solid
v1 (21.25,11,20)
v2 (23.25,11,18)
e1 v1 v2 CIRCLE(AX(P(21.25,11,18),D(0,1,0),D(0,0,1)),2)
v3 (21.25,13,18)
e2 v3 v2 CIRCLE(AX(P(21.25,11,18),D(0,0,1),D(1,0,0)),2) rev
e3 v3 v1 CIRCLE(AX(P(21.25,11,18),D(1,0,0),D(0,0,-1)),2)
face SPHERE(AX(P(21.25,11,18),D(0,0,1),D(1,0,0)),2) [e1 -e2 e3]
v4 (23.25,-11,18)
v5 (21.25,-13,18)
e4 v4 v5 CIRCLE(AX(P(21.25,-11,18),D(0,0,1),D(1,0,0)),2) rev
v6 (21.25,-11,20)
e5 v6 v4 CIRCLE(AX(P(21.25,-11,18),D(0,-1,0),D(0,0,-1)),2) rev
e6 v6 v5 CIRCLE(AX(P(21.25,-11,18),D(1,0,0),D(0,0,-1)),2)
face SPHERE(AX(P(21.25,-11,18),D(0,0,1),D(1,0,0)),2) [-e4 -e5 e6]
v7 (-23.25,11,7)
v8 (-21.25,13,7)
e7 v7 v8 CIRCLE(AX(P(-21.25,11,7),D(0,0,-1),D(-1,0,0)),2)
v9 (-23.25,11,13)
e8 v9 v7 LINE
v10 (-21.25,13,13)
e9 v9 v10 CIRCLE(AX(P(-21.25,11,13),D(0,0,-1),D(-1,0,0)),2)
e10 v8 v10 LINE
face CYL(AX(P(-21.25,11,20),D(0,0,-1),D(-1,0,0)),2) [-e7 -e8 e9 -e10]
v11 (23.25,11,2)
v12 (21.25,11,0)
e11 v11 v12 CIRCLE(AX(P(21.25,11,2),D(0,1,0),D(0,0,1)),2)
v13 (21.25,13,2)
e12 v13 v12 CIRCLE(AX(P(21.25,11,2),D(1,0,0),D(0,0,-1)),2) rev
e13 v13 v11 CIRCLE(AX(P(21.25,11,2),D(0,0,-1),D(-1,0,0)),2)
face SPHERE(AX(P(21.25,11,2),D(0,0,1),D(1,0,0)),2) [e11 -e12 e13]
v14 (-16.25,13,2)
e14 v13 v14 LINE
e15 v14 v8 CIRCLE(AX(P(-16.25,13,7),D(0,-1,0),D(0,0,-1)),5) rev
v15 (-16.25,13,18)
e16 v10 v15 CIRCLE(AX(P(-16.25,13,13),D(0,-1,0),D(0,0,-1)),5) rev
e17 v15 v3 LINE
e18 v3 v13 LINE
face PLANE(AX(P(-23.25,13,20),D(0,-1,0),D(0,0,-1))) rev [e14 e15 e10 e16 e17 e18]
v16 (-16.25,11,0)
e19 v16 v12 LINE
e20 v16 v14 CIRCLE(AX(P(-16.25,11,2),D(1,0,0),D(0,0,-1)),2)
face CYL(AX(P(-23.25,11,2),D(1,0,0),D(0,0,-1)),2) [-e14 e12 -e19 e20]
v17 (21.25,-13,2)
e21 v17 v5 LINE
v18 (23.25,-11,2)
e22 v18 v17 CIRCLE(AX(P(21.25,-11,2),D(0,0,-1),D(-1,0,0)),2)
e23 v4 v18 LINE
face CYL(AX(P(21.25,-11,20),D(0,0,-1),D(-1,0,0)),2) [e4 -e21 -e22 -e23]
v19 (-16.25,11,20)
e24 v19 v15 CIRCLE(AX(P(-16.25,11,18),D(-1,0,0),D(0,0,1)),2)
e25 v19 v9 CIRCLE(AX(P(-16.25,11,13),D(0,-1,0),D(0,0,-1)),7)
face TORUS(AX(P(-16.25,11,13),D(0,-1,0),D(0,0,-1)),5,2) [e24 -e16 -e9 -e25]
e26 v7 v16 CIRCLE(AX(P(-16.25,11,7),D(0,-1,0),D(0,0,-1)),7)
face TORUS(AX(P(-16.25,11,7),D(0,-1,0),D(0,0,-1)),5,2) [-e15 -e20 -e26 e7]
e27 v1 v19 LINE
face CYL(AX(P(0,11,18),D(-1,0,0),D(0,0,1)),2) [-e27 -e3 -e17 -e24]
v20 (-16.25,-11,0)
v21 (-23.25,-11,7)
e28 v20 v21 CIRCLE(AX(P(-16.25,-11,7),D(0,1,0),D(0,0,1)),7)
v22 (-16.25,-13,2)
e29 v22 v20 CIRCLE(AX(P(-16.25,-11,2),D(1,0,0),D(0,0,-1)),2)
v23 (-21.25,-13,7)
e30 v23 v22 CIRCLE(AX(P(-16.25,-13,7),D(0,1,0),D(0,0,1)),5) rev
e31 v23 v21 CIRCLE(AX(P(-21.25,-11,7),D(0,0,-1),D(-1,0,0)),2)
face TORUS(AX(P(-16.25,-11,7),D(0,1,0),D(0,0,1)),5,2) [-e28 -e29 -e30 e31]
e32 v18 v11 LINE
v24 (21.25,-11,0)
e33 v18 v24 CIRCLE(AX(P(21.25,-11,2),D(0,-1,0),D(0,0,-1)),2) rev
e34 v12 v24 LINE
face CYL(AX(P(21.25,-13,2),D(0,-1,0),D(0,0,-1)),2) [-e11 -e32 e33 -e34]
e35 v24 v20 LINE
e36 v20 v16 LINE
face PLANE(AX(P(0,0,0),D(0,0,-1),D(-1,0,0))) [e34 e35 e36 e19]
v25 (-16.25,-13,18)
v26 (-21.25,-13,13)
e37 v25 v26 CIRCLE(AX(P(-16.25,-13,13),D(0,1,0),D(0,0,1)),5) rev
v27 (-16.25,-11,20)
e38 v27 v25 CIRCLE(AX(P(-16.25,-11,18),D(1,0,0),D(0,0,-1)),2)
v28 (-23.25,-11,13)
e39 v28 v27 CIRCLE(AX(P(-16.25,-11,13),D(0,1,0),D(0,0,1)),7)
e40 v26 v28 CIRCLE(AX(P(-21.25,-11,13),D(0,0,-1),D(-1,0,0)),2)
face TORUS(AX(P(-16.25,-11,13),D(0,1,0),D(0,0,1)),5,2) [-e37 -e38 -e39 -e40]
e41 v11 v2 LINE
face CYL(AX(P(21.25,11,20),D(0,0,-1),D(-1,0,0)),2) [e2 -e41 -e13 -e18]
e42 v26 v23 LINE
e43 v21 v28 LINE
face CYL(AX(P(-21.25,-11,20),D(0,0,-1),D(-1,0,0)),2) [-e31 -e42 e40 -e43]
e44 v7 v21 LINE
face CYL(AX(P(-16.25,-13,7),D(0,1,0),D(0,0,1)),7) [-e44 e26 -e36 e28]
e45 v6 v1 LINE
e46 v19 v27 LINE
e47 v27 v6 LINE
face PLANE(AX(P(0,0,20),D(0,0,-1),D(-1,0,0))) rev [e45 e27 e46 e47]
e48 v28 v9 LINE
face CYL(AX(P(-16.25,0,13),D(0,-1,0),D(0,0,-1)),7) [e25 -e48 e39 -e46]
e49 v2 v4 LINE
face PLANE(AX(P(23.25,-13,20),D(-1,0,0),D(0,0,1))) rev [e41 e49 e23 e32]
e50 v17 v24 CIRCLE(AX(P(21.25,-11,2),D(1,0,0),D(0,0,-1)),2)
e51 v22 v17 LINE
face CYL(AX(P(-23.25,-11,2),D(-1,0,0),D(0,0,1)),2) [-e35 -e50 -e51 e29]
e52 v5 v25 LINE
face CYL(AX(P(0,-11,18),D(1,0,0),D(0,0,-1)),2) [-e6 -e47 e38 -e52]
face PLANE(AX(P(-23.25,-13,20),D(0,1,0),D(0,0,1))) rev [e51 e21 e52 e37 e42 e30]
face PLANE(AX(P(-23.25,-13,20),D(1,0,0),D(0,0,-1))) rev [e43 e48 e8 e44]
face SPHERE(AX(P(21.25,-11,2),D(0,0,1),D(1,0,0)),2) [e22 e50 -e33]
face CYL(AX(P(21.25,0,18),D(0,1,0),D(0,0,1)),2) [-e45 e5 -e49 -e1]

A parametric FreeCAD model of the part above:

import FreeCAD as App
import Part
import Sketcher
Q = App.Units.Quantity


def edges_at(feature, points):
    """Names of the edges that pass closest to the given points."""
    edges = feature.Shape.Edges
    near = lambda p: min(range(len(edges)), key=lambda i: edges[i].distToShape(Part.Vertex(*p))[0])
    return sorted({f"Edge{near(p) + 1}" for p in points})


def add_polygon(sketch, points):
    """Adds a closed chain of lines whose ends are joined by coincident constraints."""
    first, n = sketch.GeometryCount, len(points)
    for a, b in zip(points, points[1:] + points[:1]):
        sketch.addGeometry(Part.LineSegment(App.Vector(*a, 0), App.Vector(*b, 0)), False)
    for i in range(n):
        sketch.addConstraint(Sketcher.Constraint("Coincident", first + i, 2, first + (i + 1) % n, 1))

doc = App.newDocument("Part")
params = doc.addObject("Spreadsheet::Sheet", "Params")
for row, (alias, value) in enumerate([
    ("sketch1_height", "26 mm"),
    ("sketch1_width", "46.5 mm"),
    ("pad1_length", "20 mm"),
    ("fillet_radius", "7 mm"),
    ("fillet2_radius", "2 mm"),
], start=1):
    params.set(f"A{row}", alias)
    params.set(f"B{row}", "=" + value)
    params.setAlias(f"B{row}", alias)

body = doc.addObject("PartDesign::Body", "Body")

# Sketch on XY plane
sketch1 = body.newObject("Sketcher::SketchObject", "Sketch")
sketch1.AttachmentSupport = (doc.getObject("XY_Plane"), [""])
sketch1.MapMode = "FlatFace"
add_polygon(sketch1, [(-23, 13), (-23, -13), (23, -13), (23, 13)])  # lines 0-3
sketch1.addConstraint([
    Sketcher.Constraint("Vertical", 0),
    Sketcher.Constraint("Horizontal", 1),
    Sketcher.Constraint("Vertical", 2),
    Sketcher.Constraint("Horizontal", 3),
    Sketcher.Constraint("Symmetric", 0, 2, 2, 2, -1, 1),
    Sketcher.Constraint("DistanceY", 0, 2, 0, 1, Q("26 mm")),
    Sketcher.Constraint("DistanceX", 1, 1, 1, 2, Q("46.5 mm")),
])
sketch1.setExpression("Constraints[9]", "Params.sketch1_height")
sketch1.setExpression("Constraints[10]", "Params.sketch1_width")
pad1 = body.newObject("PartDesign::Pad", "Pad")
pad1.Profile = sketch1
pad1.setExpression("Length", "Params.pad1_length")
doc.recompute()

fillet = body.newObject("PartDesign::Fillet", "Fillet")
fillet.Base = (pad1, edges_at(pad1, [(-23.25, 0, 20), (-23.25, 0, 0)]))
fillet.setExpression("Radius", "Params.fillet_radius")
doc.recompute()

fillet2 = body.newObject("PartDesign::Fillet", "Fillet001")
fillet2.Base = (fillet, ["Edge1"])
fillet2.UseAllEdges = True
fillet2.setExpression("Radius", "Params.fillet2_radius")

doc.recompute()
